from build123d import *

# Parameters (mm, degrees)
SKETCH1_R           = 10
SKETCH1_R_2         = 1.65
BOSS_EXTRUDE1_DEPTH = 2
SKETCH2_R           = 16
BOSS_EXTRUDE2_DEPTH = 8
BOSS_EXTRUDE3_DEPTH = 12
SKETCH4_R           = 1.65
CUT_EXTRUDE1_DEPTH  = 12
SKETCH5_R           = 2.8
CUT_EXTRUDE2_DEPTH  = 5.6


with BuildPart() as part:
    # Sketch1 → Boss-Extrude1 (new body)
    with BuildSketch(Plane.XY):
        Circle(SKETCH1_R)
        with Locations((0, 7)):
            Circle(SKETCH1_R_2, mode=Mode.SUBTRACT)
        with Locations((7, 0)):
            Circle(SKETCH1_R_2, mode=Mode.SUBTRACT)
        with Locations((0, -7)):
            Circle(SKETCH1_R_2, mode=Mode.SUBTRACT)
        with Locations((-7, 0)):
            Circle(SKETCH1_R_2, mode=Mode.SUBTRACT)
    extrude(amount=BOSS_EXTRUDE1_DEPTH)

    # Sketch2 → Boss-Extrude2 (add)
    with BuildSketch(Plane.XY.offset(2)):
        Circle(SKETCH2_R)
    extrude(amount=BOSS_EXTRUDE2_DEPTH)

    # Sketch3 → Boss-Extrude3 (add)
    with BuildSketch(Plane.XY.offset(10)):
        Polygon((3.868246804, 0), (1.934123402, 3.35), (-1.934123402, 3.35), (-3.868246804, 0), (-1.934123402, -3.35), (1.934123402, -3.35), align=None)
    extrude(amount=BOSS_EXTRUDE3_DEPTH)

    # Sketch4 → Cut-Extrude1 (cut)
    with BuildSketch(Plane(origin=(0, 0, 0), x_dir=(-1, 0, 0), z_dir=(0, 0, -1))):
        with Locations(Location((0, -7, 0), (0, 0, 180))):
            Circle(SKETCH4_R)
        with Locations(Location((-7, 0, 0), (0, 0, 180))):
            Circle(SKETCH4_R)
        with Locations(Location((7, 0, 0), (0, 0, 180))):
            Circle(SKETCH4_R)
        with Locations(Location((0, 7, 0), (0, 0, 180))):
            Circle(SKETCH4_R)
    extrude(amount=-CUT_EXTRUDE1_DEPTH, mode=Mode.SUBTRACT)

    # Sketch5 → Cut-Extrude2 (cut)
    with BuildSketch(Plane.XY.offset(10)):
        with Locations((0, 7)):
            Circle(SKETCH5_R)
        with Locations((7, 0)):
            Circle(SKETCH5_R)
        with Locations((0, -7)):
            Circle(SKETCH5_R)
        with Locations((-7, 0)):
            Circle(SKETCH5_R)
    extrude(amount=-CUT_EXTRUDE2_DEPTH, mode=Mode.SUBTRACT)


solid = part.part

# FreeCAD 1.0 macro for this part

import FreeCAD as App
import Part
import Sketcher
from FreeCAD import Vector
Q = App.Units.Quantity


def add_polygon(sketch, points):
    """Adds a closed chain of lines whose ends are joined by coincident constraints."""
    first, n = sketch.GeometryCount, len(points)
    for a, b in zip(points, points[1:] + points[:1]):
        sketch.addGeometry(Part.LineSegment(App.Vector(*a, 0), App.Vector(*b, 0)), False)
    for i in range(n):
        sketch.addConstraint(Sketcher.Constraint("Coincident", first + i, 2, first + (i + 1) % n, 1))

doc = App.newDocument("Part")
body = doc.addObject("PartDesign::Body", "Body")

# Sketch on XY plane
sketch1 = body.newObject("Sketcher::SketchObject", "Sketch")
sketch1.AttachmentSupport = (doc.getObject("XY_Plane"), [""])
sketch1.MapMode = "FlatFace"
sketch1.addGeometry([
    Part.Circle(Vector(0, 0, 0), Vector(0, 0, 1), 10),  # 0
    Part.Circle(Vector(0, -7, 0), Vector(0, 0, 1), 1.65),  # 1
    Part.Circle(Vector(-7, 0, 0), Vector(0, 0, 1), 1.65),  # 2
    Part.Circle(Vector(0, 7, 0), Vector(0, 0, 1), 1.65),  # 3
    Part.Circle(Vector(7, 0, 0), Vector(0, 0, 1), 1.65),  # 4
], False)
sketch1.addConstraint([
    Sketcher.Constraint("Coincident", 0, 3, -1, 1),
    Sketcher.Constraint("Equal", 1, 2),
    Sketcher.Constraint("Equal", 2, 3),
    Sketcher.Constraint("Equal", 3, 4),
    Sketcher.Constraint("Symmetric", 1, 3, 3, 3, -1, 1),
    Sketcher.Constraint("Symmetric", 2, 3, 4, 3, -1, 1),
    Sketcher.Constraint("PointOnObject", 1, 3, -2),
    Sketcher.Constraint("PointOnObject", 2, 3, -1),
    Sketcher.Constraint("Diameter", 0, Q("20 mm")),
    Sketcher.Constraint("Diameter", 1, Q("3.3 mm")),
    Sketcher.Constraint("DistanceY", 1, 3, -1, 1, Q("7 mm")),
    Sketcher.Constraint("DistanceX", 2, 3, -1, 1, Q("7 mm")),
])
pad1 = body.newObject("PartDesign::Pad", "Pad")
pad1.Profile = sketch1
pad1.Length = 2

# Sketch on XY plane
sketch2 = body.newObject("Sketcher::SketchObject", "Sketch001")
sketch2.AttachmentSupport = (doc.getObject("XY_Plane"), [""])
sketch2.MapMode = "FlatFace"
sketch2.AttachmentOffset = App.Placement(Vector(0, 0, 2), App.Rotation())
sketch2.addGeometry(Part.Circle(Vector(0, 0, 0), Vector(0, 0, 1), 16), False)
sketch2.addConstraint([
    Sketcher.Constraint("Coincident", 0, 3, -1, 1),
    Sketcher.Constraint("Diameter", 0, Q("32 mm")),
])
pad2 = body.newObject("PartDesign::Pad", "Pad001")
pad2.Profile = sketch2
pad2.Length = 8

# Sketch on XY plane
sketch3 = body.newObject("Sketcher::SketchObject", "Sketch002")
sketch3.AttachmentSupport = (doc.getObject("XY_Plane"), [""])
sketch3.MapMode = "FlatFace"
sketch3.AttachmentOffset = App.Placement(Vector(0, 0, 10), App.Rotation())
add_polygon(sketch3, [(3.868247, 0), (1.934123, 3.35), (-1.934123, 3.35), (-3.868247, 0), (-1.934123, -3.35), (1.934123, -3.35)])  # lines 0-5
sketch3.addConstraint([
    Sketcher.Constraint("Horizontal", 1),
    Sketcher.Constraint("Horizontal", 4),
    Sketcher.Constraint("Symmetric", 0, 2, 3, 2, -1, 1),
    Sketcher.Constraint("Symmetric", 2, 2, 5, 2, -1, 1),
    Sketcher.Constraint("PointOnObject", 2, 2, -1),
    Sketcher.Constraint("Parallel", 2, 5),
    Sketcher.Constraint("Vertical", 1, 2, 3, 2),
    Sketcher.Constraint("Angle", 0, Q("120 deg")),
    Sketcher.Constraint("DistanceY", 3, 2, 1, 2, Q("6.7 mm")),
    Sketcher.Constraint("DistanceX", 1, 2, 1, 1, Q("3.868247 mm")),
])
pad3 = body.newObject("PartDesign::Pad", "Pad002")
pad3.Profile = sketch3
pad3.Length = 12

# Sketch on XY plane
sketch4 = body.newObject("Sketcher::SketchObject", "Sketch003")
sketch4.AttachmentSupport = (doc.getObject("XY_Plane"), [""])
sketch4.MapMode = "FlatFace"
sketch4.addGeometry([
    Part.Circle(Vector(0, -7, 0), Vector(0, 0, 1), 1.65),
    Part.Circle(Vector(7, 0, 0), Vector(0, 0, 1), 1.65),
    Part.Circle(Vector(-7, 0, 0), Vector(0, 0, 1), 1.65),
    Part.Circle(Vector(0, 7, 0), Vector(0, 0, 1), 1.65),
], False)
sketch4.addConstraint([
    Sketcher.Constraint("Equal", 0, 1),
    Sketcher.Constraint("Equal", 1, 2),
    Sketcher.Constraint("Equal", 2, 3),
    Sketcher.Constraint("Symmetric", 1, 3, 2, 3, -1, 1),
    Sketcher.Constraint("Symmetric", 0, 3, 3, 3, -1, 1),
    Sketcher.Constraint("PointOnObject", 0, 3, -2),
    Sketcher.Constraint("PointOnObject", 1, 3, -1),
    Sketcher.Constraint("Diameter", 0, Q("3.3 mm")),
    Sketcher.Constraint("DistanceY", 0, 3, -1, 1, Q("7 mm")),
    Sketcher.Constraint("DistanceX", -1, 1, 1, 3, Q("7 mm")),
])
pocket1 = body.newObject("PartDesign::Pocket", "Pocket")
pocket1.Profile = sketch4
pocket1.Length = 12
pocket1.Reversed = True

# Sketch on XY plane
sketch5 = body.newObject("Sketcher::SketchObject", "Sketch004")
sketch5.AttachmentSupport = (doc.getObject("XY_Plane"), [""])
sketch5.MapMode = "FlatFace"
sketch5.AttachmentOffset = App.Placement(Vector(0, 0, 10), App.Rotation())
sketch5.addGeometry([
    Part.Circle(Vector(0, 7, 0), Vector(0, 0, 1), 2.8),
    Part.Circle(Vector(7, 0, 0), Vector(0, 0, 1), 2.8),
    Part.Circle(Vector(0, -7, 0), Vector(0, 0, 1), 2.8),
    Part.Circle(Vector(-7, 0, 0), Vector(0, 0, 1), 2.8),
], False)
sketch5.addConstraint([
    Sketcher.Constraint("Equal", 0, 1),
    Sketcher.Constraint("Equal", 1, 2),
    Sketcher.Constraint("Equal", 2, 3),
    Sketcher.Constraint("Symmetric", 0, 3, 2, 3, -1, 1),
    Sketcher.Constraint("Symmetric", 1, 3, 3, 3, -1, 1),
    Sketcher.Constraint("PointOnObject", 0, 3, -2),
    Sketcher.Constraint("PointOnObject", 1, 3, -1),
    Sketcher.Constraint("Diameter", 0, Q("5.6 mm")),
    Sketcher.Constraint("DistanceY", -1, 1, 0, 3, Q("7 mm")),
    Sketcher.Constraint("DistanceX", -1, 1, 1, 3, Q("7 mm")),
])
pocket2 = body.newObject("PartDesign::Pocket", "Pocket001")
pocket2.Profile = sketch5
pocket2.Length = 5.6

doc.recompute()
